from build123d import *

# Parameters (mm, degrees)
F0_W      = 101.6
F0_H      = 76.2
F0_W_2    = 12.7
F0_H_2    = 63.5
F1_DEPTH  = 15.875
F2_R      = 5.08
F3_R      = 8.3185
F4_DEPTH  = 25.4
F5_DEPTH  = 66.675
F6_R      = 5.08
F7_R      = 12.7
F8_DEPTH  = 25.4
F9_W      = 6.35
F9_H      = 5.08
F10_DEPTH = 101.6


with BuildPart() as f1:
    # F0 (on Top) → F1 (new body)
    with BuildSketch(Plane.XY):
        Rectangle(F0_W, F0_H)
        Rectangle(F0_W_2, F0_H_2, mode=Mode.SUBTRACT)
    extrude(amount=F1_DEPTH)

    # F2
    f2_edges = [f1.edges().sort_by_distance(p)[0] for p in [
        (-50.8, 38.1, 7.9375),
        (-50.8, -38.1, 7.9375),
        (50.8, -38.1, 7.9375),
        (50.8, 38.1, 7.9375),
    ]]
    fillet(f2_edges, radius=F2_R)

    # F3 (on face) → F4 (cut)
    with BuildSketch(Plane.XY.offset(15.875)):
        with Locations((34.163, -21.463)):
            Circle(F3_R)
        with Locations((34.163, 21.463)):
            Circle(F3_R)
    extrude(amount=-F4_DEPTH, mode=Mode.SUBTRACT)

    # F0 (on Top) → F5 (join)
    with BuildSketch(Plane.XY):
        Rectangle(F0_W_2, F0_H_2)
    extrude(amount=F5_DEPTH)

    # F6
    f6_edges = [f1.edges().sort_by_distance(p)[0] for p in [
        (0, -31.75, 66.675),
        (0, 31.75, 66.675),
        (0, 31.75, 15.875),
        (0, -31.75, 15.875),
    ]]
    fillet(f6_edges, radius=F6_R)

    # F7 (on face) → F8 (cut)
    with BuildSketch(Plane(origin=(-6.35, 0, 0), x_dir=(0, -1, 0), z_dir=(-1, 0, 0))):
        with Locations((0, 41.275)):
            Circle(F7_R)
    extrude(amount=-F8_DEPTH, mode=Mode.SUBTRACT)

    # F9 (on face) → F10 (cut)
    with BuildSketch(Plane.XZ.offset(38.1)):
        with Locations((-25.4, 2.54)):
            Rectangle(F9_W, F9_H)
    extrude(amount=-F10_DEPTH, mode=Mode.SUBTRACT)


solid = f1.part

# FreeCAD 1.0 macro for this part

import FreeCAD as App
import Part
import Sketcher

V = App.Vector
Q = App.Units.Quantity


def edges_at(feature, points):
    """Names of the edges that pass closest to the given points."""
    edges = feature.Shape.Edges
    near = lambda p: min(range(len(edges)), key=lambda i: edges[i].distToShape(Part.Vertex(*p))[0])
    return sorted({f"Edge{near(p) + 1}" for p in points})


def add_polygon(sketch, points):
    """Adds a closed chain of lines whose ends are joined by coincident constraints."""
    first, n = sketch.GeometryCount, len(points)
    for a, b in zip(points, points[1:] + points[:1]):
        sketch.addGeometry(Part.LineSegment(App.Vector(*a, 0), App.Vector(*b, 0)), False)
    for i in range(n):
        sketch.addConstraint(Sketcher.Constraint("Coincident", first + i, 2, first + (i + 1) % n, 1))

doc = App.newDocument("Part")
params = doc.addObject("Spreadsheet::Sheet", "Params")
for row, (alias, value) in enumerate([
    ("sketch1_width", "4 in"),
    ("sketch1_height", "3 in"),
    ("sketch1_width2", "0.5 in"),
    ("sketch1_height2", "2.5 in"),
    ("pad1_length", "0.625 in"),
    ("fillet_radius", "0.2 in"),
    ("sketch2_diameter", "0.655 in"),
    ("pocket1_length", "1 in"),
    ("sketch3_width", "0.5 in"),
    ("sketch3_height", "2.5 in"),
    ("pad2_length", "2.625 in"),
    ("fillet2_radius", "0.2 in"),
    ("sketch4_diameter", "1 in"),
    ("pocket2_length", "1 in"),
    ("sketch5_height", "0.2 in"),
    ("sketch5_width", "0.25 in"),
    ("pocket3_length", "4 in"),
], start=1):
    params.set(f"A{row}", alias)
    params.set(f"B{row}", "=" + value)
    params.setAlias(f"B{row}", alias)

body = doc.addObject("PartDesign::Body", "Body")

# Sketch on XY plane
sketch1 = doc.addObject("Sketcher::SketchObject", "Sketch")
body.addObject(sketch1)
sketch1.AttachmentSupport = (doc.XY_Plane, [""])
sketch1.MapMode = "FlatFace"
add_polygon(sketch1, [(-51, 38), (-51, -38), (51, -38), (51, 38)])  # lines 0-3
add_polygon(sketch1, [(6, -32), (-6, -32), (-6, 32), (6, 32)])  # lines 4-7
sketch1.addConstraint([
    Sketcher.Constraint("Vertical", 0),
    Sketcher.Constraint("Horizontal", 1),
    Sketcher.Constraint("Vertical", 2),
    Sketcher.Constraint("Horizontal", 3),
    Sketcher.Constraint("Horizontal", 4),
    Sketcher.Constraint("Vertical", 5),
    Sketcher.Constraint("Horizontal", 6),
    Sketcher.Constraint("Vertical", 7),
    Sketcher.Constraint("Symmetric", 0, 2, 2, 2, -1, 1),
    Sketcher.Constraint("Symmetric", 4, 2, 6, 2, -1, 1),
    Sketcher.Constraint("DistanceX", 1, 1, 1, 2, Q("4 in")),
    Sketcher.Constraint("DistanceY", 0, 2, 0, 1, Q("3 in")),
    Sketcher.Constraint("DistanceX", 4, 2, 4, 1, Q("0.5 in")),
    Sketcher.Constraint("DistanceY", 5, 1, 5, 2, Q("2.5 in")),
])
sketch1.setExpression("Constraints[18]", "Params.sketch1_width")
sketch1.setExpression("Constraints[19]", "Params.sketch1_height")
sketch1.setExpression("Constraints[20]", "Params.sketch1_width2")
sketch1.setExpression("Constraints[21]", "Params.sketch1_height2")
pad1 = doc.addObject("PartDesign::Pad", "Pad")
body.addObject(pad1)
pad1.Profile = sketch1
pad1.setExpression("Length", "Params.pad1_length")
doc.recompute()

fillet = doc.addObject("PartDesign::Fillet", "Fillet")
body.addObject(fillet)
fillet.Base = (pad1, edges_at(pad1, [
    (-50.8, 38.1, 7.938),
    (-50.8, -38.1, 7.938),
    (50.8, -38.1, 7.938),
    (50.8, 38.1, 7.938),
]))
fillet.setExpression("Radius", "Params.fillet_radius")

# Sketch on XY plane
sketch2 = doc.addObject("Sketcher::SketchObject", "Sketch001")
body.addObject(sketch2)
sketch2.AttachmentSupport = (doc.XY_Plane, [""])
sketch2.MapMode = "FlatFace"
sketch2.AttachmentOffset = App.Placement(V(0, 0, 0.625 * 25.4), App.Rotation())
sketch2.addGeometry([
    Part.Circle(V(34, -21, 0), V(0, 0, 1), 8),
    Part.Circle(V(34, 21, 0), V(0, 0, 1), 8),
], False)
sketch2.addConstraint([
    Sketcher.Constraint("Equal", 0, 1),
    Sketcher.Constraint("Symmetric", 0, 3, 1, 3, -1),
    Sketcher.Constraint("Diameter", 0, Q("0.655 in")),
    Sketcher.Constraint("DistanceY", 0, 3, 1, 3, Q("1.69 in")),
    Sketcher.Constraint("DistanceX", -1, 1, 0, 3, Q("1.345 in")),
])
sketch2.setExpression("Constraints[2]", "Params.sketch2_diameter")
pocket1 = doc.addObject("PartDesign::Pocket", "Pocket")
body.addObject(pocket1)
pocket1.Profile = sketch2
pocket1.setExpression("Length", "Params.pocket1_length")

# Sketch on XY plane
sketch3 = doc.addObject("Sketcher::SketchObject", "Sketch002")
body.addObject(sketch3)
sketch3.AttachmentSupport = (doc.XY_Plane, [""])
sketch3.MapMode = "FlatFace"
add_polygon(sketch3, [(-6, 32), (-6, -32), (6, -32), (6, 32)])  # lines 0-3
sketch3.addConstraint([
    Sketcher.Constraint("Vertical", 0),
    Sketcher.Constraint("Horizontal", 1),
    Sketcher.Constraint("Vertical", 2),
    Sketcher.Constraint("Horizontal", 3),
    Sketcher.Constraint("Symmetric", 0, 2, 2, 2, -1, 1),
    Sketcher.Constraint("DistanceX", 1, 1, 1, 2, Q("0.5 in")),
    Sketcher.Constraint("DistanceY", 0, 2, 0, 1, Q("2.5 in")),
])
sketch3.setExpression("Constraints[9]", "Params.sketch3_width")
sketch3.setExpression("Constraints[10]", "Params.sketch3_height")
pad2 = doc.addObject("PartDesign::Pad", "Pad001")
body.addObject(pad2)
pad2.Profile = sketch3
pad2.setExpression("Length", "Params.pad2_length")
doc.recompute()

fillet2 = doc.addObject("PartDesign::Fillet", "Fillet001")
body.addObject(fillet2)
fillet2.Base = (pad2, edges_at(pad2, [
    (0, -31.75, 66.675),
    (0, 31.75, 66.675),
    (0, 31.75, 15.875),
    (0, -31.75, 15.875),
]))
fillet2.setExpression("Radius", "Params.fillet2_radius")

# Sketch on YZ plane
sketch4 = doc.addObject("Sketcher::SketchObject", "Sketch003")
body.addObject(sketch4)
sketch4.AttachmentSupport = (doc.YZ_Plane, [""])
sketch4.MapMode = "FlatFace"
sketch4.AttachmentOffset = App.Placement(V(0, 0, -0.25 * 25.4), App.Rotation())
sketch4.addGeometry(Part.Circle(V(0, 41, 0), V(0, 0, 1), 13), False)
sketch4.addConstraint([
    Sketcher.Constraint("PointOnObject", 0, 3, -2),
    Sketcher.Constraint("Diameter", 0, Q("1 in")),
    Sketcher.Constraint("DistanceY", -1, 1, 0, 3, Q("1.625 in")),
])
sketch4.setExpression("Constraints[1]", "Params.sketch4_diameter")
pocket2 = doc.addObject("PartDesign::Pocket", "Pocket001")
body.addObject(pocket2)
pocket2.Profile = sketch4
pocket2.setExpression("Length", "Params.pocket2_length")
pocket2.Reversed = True

# Sketch on XZ plane
sketch5 = doc.addObject("Sketcher::SketchObject", "Sketch004")
body.addObject(sketch5)
sketch5.AttachmentSupport = (doc.XZ_Plane, [""])
sketch5.MapMode = "FlatFace"
sketch5.AttachmentOffset = App.Placement(V(0, 0, 1.5 * 25.4), App.Rotation())
add_polygon(sketch5, [(-29, 5), (-29, 0), (-22, 0), (-22, 5)])  # lines 0-3
sketch5.addConstraint([
    Sketcher.Constraint("Vertical", 0),
    Sketcher.Constraint("Horizontal", 1),
    Sketcher.Constraint("Vertical", 2),
    Sketcher.Constraint("Horizontal", 3),
    Sketcher.Constraint("PointOnObject", 0, 2, -1),
    Sketcher.Constraint("DistanceY", 0, 2, 0, 1, Q("0.2 in")),
    Sketcher.Constraint("DistanceX", 1, 1, 1, 2, Q("0.25 in")),
    Sketcher.Constraint("DistanceX", 0, 2, -1, 1, Q("1.125 in")),
])
sketch5.setExpression("Constraints[9]", "Params.sketch5_height")
sketch5.setExpression("Constraints[10]", "Params.sketch5_width")
pocket3 = doc.addObject("PartDesign::Pocket", "Pocket002")
body.addObject(pocket3)
pocket3.Profile = sketch5
pocket3.setExpression("Length", "Params.pocket3_length")

doc.recompute()
